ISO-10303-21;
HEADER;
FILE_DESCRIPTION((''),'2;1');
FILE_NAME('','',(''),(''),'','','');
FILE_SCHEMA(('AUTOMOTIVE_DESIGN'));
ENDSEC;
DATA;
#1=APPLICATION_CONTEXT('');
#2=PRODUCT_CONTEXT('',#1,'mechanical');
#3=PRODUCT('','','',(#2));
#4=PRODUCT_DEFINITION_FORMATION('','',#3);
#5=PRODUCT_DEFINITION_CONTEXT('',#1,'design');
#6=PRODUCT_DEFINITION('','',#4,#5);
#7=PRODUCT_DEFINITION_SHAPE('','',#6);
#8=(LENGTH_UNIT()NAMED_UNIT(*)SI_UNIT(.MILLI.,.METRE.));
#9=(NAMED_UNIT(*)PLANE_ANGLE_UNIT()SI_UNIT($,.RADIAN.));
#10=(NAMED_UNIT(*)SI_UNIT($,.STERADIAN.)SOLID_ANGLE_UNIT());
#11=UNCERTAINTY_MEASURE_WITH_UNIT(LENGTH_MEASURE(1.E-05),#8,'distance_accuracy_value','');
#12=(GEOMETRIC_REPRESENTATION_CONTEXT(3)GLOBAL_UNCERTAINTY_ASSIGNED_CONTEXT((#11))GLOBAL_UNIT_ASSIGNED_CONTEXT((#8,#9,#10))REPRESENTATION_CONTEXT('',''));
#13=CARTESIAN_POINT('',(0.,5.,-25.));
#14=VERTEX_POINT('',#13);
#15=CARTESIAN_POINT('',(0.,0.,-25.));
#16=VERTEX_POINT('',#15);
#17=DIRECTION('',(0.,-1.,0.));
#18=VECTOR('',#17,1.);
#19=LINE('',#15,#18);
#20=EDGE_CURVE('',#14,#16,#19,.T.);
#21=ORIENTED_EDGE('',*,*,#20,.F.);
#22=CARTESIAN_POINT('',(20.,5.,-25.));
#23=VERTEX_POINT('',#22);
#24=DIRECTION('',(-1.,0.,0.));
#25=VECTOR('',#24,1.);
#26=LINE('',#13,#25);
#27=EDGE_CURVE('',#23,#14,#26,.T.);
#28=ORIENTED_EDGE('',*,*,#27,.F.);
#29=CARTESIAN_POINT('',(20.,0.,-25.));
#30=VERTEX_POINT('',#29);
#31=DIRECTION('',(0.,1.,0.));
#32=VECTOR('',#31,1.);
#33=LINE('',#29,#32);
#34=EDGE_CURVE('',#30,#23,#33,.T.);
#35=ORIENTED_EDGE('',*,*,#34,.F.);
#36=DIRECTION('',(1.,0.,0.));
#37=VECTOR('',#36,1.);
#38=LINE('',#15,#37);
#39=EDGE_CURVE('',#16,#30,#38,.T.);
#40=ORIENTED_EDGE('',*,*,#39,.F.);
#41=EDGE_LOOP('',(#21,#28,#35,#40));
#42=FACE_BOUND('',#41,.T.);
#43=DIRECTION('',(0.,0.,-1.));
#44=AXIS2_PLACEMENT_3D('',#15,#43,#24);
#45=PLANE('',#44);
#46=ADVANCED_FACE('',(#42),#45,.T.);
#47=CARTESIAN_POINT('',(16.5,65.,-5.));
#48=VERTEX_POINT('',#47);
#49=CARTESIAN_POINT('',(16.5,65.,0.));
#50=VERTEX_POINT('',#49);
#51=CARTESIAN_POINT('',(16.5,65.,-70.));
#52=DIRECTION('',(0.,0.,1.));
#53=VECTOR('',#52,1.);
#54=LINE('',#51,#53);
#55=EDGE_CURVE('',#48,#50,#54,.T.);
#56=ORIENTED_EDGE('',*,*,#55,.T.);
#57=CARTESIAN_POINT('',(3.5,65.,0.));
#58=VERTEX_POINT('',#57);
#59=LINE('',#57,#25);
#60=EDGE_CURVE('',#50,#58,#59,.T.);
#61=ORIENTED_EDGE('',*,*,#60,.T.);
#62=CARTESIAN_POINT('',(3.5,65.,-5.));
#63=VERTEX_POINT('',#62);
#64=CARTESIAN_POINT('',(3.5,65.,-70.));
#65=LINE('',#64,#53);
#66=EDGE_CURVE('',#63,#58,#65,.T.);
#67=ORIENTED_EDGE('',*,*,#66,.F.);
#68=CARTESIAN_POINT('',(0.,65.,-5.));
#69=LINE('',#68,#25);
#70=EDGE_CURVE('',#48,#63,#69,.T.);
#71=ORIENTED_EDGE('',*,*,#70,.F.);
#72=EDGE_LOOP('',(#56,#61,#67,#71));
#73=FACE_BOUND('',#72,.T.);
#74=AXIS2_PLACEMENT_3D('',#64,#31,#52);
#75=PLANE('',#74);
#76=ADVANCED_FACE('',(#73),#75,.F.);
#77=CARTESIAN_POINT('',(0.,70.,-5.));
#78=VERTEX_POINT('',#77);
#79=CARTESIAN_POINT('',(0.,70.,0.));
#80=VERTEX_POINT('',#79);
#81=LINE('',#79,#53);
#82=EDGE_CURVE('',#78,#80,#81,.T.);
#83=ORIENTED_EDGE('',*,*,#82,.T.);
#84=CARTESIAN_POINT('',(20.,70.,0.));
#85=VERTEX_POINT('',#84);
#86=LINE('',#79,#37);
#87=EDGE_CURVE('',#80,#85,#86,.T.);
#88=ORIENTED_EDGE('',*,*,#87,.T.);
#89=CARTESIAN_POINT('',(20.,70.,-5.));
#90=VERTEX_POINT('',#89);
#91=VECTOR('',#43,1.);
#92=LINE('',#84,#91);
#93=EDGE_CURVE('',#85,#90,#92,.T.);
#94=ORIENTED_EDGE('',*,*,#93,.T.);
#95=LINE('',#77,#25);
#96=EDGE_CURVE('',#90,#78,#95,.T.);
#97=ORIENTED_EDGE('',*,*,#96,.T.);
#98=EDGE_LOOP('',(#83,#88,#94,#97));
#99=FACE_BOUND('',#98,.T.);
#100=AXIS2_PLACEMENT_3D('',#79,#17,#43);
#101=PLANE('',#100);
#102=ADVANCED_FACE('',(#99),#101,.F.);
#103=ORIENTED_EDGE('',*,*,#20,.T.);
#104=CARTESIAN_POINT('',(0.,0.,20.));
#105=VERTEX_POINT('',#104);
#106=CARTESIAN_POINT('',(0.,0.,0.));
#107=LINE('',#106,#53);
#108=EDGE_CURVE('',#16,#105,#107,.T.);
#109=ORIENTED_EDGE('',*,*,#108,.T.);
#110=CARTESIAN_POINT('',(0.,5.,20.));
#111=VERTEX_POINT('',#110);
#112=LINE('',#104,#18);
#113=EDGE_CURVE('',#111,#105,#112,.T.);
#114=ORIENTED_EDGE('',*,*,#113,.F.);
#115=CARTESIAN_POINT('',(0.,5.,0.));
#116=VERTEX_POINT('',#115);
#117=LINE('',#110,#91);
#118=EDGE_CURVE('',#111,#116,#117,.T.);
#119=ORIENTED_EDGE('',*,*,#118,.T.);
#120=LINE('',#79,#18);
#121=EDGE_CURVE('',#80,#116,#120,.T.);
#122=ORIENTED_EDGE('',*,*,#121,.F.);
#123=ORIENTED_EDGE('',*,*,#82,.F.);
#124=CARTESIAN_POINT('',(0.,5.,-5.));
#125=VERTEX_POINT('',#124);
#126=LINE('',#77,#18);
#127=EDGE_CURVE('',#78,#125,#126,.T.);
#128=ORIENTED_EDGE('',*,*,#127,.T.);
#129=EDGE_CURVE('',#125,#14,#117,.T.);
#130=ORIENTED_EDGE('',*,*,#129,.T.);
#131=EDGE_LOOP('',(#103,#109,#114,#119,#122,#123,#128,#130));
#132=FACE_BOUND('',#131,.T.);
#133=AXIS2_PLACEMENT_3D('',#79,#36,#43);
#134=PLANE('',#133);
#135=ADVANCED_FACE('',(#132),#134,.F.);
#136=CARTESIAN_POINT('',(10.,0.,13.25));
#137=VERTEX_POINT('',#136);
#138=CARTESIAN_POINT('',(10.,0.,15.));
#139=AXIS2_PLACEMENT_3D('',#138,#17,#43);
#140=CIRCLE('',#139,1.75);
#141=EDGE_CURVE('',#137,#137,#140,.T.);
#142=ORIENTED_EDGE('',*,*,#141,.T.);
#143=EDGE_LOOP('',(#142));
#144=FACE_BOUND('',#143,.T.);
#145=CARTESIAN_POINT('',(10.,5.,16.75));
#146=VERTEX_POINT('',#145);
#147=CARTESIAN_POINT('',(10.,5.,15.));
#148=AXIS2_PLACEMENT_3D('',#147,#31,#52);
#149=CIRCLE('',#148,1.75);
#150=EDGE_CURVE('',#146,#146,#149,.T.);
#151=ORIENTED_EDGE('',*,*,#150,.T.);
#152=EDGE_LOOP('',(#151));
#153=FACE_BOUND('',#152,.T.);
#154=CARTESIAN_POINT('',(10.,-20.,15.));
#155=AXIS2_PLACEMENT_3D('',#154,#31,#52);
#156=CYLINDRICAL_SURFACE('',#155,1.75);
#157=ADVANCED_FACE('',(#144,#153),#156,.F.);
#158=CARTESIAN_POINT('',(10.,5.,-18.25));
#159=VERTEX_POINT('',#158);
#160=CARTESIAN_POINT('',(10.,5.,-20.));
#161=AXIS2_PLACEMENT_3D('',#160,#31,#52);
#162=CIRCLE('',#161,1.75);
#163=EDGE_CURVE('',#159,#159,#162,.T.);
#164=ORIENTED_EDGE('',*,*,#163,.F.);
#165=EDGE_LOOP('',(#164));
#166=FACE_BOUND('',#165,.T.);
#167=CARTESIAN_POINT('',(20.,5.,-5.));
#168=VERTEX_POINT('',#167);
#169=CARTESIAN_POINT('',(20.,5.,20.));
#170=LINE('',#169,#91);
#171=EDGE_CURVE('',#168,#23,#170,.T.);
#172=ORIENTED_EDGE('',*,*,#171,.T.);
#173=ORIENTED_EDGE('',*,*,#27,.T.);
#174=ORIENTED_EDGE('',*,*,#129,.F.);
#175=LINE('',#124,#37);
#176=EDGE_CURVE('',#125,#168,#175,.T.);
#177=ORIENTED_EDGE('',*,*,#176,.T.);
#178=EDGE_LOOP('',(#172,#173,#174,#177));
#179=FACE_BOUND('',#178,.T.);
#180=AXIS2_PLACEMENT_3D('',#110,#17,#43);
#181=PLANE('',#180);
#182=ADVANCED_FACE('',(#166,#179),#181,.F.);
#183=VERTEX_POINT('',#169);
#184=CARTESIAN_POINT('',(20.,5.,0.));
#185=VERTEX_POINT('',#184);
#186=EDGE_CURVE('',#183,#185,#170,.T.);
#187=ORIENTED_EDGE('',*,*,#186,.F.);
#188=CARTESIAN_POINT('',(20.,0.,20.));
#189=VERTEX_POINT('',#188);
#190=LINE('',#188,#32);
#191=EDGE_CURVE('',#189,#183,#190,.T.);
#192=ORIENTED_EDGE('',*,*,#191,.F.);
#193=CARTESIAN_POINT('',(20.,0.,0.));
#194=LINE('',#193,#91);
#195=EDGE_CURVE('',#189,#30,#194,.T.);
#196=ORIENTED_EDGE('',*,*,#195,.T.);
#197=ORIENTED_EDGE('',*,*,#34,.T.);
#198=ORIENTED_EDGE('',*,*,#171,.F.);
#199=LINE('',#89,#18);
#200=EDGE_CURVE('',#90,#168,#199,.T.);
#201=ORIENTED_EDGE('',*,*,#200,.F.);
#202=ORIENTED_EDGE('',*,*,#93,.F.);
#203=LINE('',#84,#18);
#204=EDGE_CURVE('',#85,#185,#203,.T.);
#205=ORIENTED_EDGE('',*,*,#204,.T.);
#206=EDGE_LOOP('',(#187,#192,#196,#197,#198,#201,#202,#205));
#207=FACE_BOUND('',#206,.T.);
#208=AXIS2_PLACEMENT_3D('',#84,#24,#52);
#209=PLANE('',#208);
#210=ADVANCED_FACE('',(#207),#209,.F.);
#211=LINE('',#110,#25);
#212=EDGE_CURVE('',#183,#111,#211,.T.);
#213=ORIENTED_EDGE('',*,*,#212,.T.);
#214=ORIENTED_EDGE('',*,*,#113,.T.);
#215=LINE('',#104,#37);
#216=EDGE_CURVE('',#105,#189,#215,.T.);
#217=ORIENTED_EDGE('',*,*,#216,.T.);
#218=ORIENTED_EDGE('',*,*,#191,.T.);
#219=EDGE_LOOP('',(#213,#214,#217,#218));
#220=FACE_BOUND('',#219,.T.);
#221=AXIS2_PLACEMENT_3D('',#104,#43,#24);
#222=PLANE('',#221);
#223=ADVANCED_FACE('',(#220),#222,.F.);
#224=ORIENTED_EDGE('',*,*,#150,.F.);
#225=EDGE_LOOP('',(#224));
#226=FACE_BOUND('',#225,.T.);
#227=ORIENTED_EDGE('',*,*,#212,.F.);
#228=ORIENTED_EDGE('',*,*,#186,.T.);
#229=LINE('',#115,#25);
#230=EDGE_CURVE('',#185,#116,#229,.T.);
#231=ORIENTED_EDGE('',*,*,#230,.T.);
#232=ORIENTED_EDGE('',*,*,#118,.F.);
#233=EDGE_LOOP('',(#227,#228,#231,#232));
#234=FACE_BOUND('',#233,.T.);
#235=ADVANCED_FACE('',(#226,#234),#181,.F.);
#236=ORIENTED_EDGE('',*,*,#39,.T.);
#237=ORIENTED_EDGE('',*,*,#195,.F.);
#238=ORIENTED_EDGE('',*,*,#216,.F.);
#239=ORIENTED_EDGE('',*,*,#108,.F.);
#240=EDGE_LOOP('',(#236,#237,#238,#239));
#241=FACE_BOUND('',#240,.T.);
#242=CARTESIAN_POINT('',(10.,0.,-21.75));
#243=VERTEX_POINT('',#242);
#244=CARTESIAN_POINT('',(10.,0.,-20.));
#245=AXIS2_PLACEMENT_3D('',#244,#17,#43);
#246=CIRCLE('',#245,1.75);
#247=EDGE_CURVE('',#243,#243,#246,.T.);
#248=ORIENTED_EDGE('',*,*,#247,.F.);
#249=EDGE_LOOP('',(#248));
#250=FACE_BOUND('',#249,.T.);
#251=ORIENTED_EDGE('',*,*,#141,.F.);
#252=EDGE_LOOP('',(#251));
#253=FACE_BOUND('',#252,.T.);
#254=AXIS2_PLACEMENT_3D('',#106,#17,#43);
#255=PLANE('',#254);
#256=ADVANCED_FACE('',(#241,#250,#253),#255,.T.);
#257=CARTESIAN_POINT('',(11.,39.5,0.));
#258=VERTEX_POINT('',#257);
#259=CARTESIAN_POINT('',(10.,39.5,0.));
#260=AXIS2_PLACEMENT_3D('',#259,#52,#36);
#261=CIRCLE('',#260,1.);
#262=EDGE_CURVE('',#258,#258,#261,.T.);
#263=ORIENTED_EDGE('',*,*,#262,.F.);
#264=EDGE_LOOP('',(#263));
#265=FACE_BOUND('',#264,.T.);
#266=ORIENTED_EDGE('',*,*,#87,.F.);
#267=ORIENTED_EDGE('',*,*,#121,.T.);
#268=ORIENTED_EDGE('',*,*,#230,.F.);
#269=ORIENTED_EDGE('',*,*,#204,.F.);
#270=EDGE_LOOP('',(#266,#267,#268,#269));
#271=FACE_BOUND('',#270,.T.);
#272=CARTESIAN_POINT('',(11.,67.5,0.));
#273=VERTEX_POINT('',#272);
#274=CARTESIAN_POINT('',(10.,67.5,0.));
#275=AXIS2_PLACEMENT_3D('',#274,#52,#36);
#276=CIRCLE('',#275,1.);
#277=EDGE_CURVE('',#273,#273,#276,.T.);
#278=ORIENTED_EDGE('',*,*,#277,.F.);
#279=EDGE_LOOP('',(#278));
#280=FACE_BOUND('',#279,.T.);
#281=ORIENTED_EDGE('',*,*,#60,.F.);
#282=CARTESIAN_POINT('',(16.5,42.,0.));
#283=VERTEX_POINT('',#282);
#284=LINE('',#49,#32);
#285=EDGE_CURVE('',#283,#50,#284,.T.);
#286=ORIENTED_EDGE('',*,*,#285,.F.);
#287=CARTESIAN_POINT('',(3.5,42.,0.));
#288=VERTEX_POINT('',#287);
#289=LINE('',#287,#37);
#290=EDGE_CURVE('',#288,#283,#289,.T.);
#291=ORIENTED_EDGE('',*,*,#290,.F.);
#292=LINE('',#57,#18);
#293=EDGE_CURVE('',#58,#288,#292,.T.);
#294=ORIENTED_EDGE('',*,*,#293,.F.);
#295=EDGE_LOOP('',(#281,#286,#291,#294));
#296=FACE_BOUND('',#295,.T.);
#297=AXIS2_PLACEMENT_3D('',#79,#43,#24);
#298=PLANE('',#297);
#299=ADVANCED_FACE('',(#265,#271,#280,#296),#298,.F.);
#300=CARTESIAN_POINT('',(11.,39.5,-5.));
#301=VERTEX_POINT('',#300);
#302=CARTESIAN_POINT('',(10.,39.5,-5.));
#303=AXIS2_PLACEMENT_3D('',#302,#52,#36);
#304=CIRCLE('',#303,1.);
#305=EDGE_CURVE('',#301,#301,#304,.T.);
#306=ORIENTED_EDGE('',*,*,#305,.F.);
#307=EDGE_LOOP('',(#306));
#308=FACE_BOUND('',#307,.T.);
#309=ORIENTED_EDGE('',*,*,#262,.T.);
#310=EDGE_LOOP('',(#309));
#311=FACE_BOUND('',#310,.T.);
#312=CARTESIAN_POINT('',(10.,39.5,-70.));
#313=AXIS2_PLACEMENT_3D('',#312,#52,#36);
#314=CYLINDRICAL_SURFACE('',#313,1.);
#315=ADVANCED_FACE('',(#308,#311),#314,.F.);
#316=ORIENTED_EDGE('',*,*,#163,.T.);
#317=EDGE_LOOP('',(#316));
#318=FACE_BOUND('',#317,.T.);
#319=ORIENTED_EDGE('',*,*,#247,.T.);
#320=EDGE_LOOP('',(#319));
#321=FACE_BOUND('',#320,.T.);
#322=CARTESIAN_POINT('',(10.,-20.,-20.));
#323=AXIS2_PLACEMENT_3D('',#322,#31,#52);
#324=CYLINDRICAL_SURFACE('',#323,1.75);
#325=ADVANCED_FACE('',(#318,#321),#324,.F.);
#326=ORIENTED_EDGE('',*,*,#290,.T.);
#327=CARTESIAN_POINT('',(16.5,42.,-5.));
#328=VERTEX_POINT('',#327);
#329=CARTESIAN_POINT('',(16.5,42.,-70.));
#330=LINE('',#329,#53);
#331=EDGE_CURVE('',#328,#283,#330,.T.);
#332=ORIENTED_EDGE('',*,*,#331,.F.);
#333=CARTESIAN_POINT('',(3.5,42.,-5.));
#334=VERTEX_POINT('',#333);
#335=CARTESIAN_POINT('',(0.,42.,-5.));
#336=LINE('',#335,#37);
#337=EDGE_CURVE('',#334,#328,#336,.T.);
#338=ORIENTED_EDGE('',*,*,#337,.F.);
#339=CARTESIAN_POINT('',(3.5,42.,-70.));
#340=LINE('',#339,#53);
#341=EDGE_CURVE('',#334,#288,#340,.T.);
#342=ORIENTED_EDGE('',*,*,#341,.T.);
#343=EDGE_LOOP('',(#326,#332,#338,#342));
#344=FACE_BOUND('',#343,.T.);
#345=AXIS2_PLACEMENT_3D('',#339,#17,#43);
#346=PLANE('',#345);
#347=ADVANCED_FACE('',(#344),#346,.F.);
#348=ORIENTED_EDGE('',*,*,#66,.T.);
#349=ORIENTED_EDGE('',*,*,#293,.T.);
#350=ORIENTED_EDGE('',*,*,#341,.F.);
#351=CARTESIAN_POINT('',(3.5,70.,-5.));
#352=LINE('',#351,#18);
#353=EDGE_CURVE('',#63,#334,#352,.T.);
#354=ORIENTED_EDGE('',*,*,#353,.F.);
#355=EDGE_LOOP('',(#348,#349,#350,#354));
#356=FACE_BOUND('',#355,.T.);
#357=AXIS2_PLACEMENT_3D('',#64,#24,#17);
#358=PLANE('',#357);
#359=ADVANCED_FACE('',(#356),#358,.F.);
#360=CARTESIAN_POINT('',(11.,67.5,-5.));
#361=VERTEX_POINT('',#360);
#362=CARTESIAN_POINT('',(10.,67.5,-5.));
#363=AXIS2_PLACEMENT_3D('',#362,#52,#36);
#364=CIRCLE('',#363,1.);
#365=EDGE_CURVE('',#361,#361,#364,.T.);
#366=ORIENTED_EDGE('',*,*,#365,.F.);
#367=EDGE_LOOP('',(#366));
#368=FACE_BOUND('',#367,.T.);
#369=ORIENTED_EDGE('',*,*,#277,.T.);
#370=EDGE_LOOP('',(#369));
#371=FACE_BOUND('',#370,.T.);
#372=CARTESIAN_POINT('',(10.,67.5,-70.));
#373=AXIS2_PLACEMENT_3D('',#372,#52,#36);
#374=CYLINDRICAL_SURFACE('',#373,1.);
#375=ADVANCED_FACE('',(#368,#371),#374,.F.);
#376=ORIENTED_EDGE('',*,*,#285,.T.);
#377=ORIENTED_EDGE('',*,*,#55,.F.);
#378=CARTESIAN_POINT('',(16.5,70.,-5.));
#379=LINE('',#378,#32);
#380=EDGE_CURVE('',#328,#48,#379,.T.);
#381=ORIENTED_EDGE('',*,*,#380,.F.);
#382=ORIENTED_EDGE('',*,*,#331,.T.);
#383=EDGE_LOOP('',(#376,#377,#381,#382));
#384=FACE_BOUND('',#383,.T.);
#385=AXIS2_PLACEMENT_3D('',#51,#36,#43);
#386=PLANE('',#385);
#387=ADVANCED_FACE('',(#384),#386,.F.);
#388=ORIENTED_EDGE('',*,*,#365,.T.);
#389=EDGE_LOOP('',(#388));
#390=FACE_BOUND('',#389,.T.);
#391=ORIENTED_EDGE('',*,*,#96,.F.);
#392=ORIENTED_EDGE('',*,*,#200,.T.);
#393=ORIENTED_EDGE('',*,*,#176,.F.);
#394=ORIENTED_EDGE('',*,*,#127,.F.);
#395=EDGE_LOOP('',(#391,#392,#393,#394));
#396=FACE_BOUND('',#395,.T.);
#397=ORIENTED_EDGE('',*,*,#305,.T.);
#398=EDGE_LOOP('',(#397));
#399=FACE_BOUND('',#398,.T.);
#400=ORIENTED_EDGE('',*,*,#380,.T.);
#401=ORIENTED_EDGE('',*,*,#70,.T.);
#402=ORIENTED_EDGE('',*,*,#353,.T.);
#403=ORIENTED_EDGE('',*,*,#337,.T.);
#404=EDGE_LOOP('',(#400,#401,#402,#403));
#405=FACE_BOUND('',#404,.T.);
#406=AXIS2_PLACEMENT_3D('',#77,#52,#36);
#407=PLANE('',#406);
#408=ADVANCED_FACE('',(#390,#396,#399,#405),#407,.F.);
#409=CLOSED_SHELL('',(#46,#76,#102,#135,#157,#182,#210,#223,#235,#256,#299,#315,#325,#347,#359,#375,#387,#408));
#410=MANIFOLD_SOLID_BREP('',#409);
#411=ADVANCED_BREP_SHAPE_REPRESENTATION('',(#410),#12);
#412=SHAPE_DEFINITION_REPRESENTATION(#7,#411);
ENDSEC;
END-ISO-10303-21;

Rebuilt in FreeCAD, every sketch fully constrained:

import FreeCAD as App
import Part
import Sketcher
Q = App.Units.Quantity

doc = App.newDocument("Part")
body = doc.addObject("PartDesign::Body", "Body")

# Sketch on XZ plane
sketch1 = body.newObject("Sketcher::SketchObject", "Sketch")
sketch1.AttachmentSupport = (doc.getObject("XZ_Plane"), [""])
sketch1.MapMode = "FlatFace"
sketch1.addGeometry([
    Part.LineSegment(App.Vector(0, -5, 0), App.Vector(0, 0, 0)),
    Part.LineSegment(App.Vector(0, 0, 0), App.Vector(20, 0, 0)),
    Part.LineSegment(App.Vector(20, 0, 0), App.Vector(20, -5, 0)),
    Part.LineSegment(App.Vector(20, -5, 0), App.Vector(0, -5, 0)),
], False)
sketch1.addConstraint([
    Sketcher.Constraint("Coincident", 0, 2, 1, 1),
    Sketcher.Constraint("Coincident", 1, 2, 2, 1),
    Sketcher.Constraint("Coincident", 2, 2, 3, 1),
    Sketcher.Constraint("Coincident", 3, 2, 0, 1),
    Sketcher.Constraint("Vertical", 0),
    Sketcher.Constraint("Horizontal", 1),
    Sketcher.Constraint("Vertical", 2),
    Sketcher.Constraint("Horizontal", 3),
    Sketcher.Constraint("Coincident", 0, 2, -1, 1),
    Sketcher.Constraint("DistanceX", 1, 1, 1, 2, Q("20 mm")),
    Sketcher.Constraint("DistanceY", 0, 1, 0, 2, Q("5 mm")),
])
pad1 = body.newObject("PartDesign::Pad", "Pad")
pad1.Profile = sketch1
pad1.Length = 70
pad1.Reversed = True

# Sketch on XY plane
sketch2 = body.newObject("Sketcher::SketchObject", "Sketch001")
sketch2.AttachmentSupport = (doc.getObject("XY_Plane"), [""])
sketch2.MapMode = "FlatFace"
sketch2.addGeometry([
    Part.Circle(App.Vector(10, 67.5, 0), App.Vector(0, 0, 1), 1),  # 0
    Part.Circle(App.Vector(10, 39.5, 0), App.Vector(0, 0, 1), 1),  # 1
    Part.LineSegment(App.Vector(3.5, 65, 0), App.Vector(3.5, 42, 0)),  # 2
    Part.LineSegment(App.Vector(3.5, 42, 0), App.Vector(16.5, 42, 0)),  # 3
    Part.LineSegment(App.Vector(16.5, 42, 0), App.Vector(16.5, 65, 0)),  # 4
    Part.LineSegment(App.Vector(16.5, 65, 0), App.Vector(3.5, 65, 0)),  # 5
], False)
sketch2.addConstraint([
    Sketcher.Constraint("Coincident", 2, 2, 3, 1),
    Sketcher.Constraint("Coincident", 3, 2, 4, 1),
    Sketcher.Constraint("Coincident", 4, 2, 5, 1),
    Sketcher.Constraint("Coincident", 5, 2, 2, 1),
    Sketcher.Constraint("Vertical", 2),
    Sketcher.Constraint("Horizontal", 3),
    Sketcher.Constraint("Vertical", 4),
    Sketcher.Constraint("Horizontal", 5),
    Sketcher.Constraint("Equal", 0, 1),
    Sketcher.Constraint("Vertical", 0, 3, 1, 3),
    Sketcher.Constraint("Diameter", 0, Q("2 mm")),
    Sketcher.Constraint("DistanceX", 3, 1, 3, 2, Q("13 mm")),
    Sketcher.Constraint("DistanceY", 2, 2, 2, 1, Q("23 mm")),
    Sketcher.Constraint("DistanceX", -1, 1, 0, 3, Q("10 mm")),
    Sketcher.Constraint("DistanceY", -1, 1, 2, 2, Q("42 mm")),
    Sketcher.Constraint("DistanceY", 1, 3, 0, 3, Q("28 mm")),
    Sketcher.Constraint("DistanceY", -1, 1, 0, 3, Q("67.5 mm")),
    Sketcher.Constraint("DistanceX", -1, 1, 2, 2, Q("3.5 mm")),
])
pocket1 = body.newObject("PartDesign::Pocket", "Pocket")
pocket1.Profile = sketch2
pocket1.Length = 70

# Sketch on XY plane
sketch3 = body.newObject("Sketcher::SketchObject", "Sketch002")
sketch3.AttachmentSupport = (doc.getObject("XY_Plane"), [""])
sketch3.MapMode = "FlatFace"
sketch3.addGeometry([
    Part.LineSegment(App.Vector(0, 5, 0), App.Vector(0, 0, 0)),
    Part.LineSegment(App.Vector(0, 0, 0), App.Vector(20, 0, 0)),
    Part.LineSegment(App.Vector(20, 0, 0), App.Vector(20, 5, 0)),
    Part.LineSegment(App.Vector(20, 5, 0), App.Vector(0, 5, 0)),
], False)
sketch3.addConstraint([
    Sketcher.Constraint("Coincident", 0, 2, 1, 1),
    Sketcher.Constraint("Coincident", 1, 2, 2, 1),
    Sketcher.Constraint("Coincident", 2, 2, 3, 1),
    Sketcher.Constraint("Coincident", 3, 2, 0, 1),
    Sketcher.Constraint("Vertical", 0),
    Sketcher.Constraint("Horizontal", 1),
    Sketcher.Constraint("Vertical", 2),
    Sketcher.Constraint("Horizontal", 3),
    Sketcher.Constraint("Coincident", 0, 2, -1, 1),
    Sketcher.Constraint("DistanceX", 1, 1, 1, 2, Q("20 mm")),
    Sketcher.Constraint("DistanceY", 0, 2, 0, 1, Q("5 mm")),
])
pad2 = body.newObject("PartDesign::Pad", "Pad001")
pad2.Profile = sketch3
pad2.Type = "TwoLengths"
pad2.Length = 20
pad2.Length2 = 25

# Sketch on XZ plane
sketch4 = body.newObject("Sketcher::SketchObject", "Sketch003")
sketch4.AttachmentSupport = (doc.getObject("XZ_Plane"), [""])
sketch4.MapMode = "FlatFace"
sketch4.AttachmentOffset = App.Placement(App.Vector(0, 0, -5), App.Rotation())
sketch4.addGeometry([
    Part.Circle(App.Vector(10, 15, 0), App.Vector(0, 0, 1), 1.8),
    Part.Circle(App.Vector(10, -20, 0), App.Vector(0, 0, 1), 1.8),
], False)
sketch4.addConstraint([
    Sketcher.Constraint("Equal", 0, 1),
    Sketcher.Constraint("Vertical", 0, 3, 1, 3),
    Sketcher.Constraint("Diameter", 0, Q("3.5 mm")),
    Sketcher.Constraint("DistanceX", -1, 1, 0, 3, Q("10 mm")),
    Sketcher.Constraint("DistanceY", -1, 1, 0, 3, Q("15 mm")),
    Sketcher.Constraint("DistanceY", 1, 3, -1, 1, Q("20 mm")),
])
pocket2 = body.newObject("PartDesign::Pocket", "Pocket001")
pocket2.Profile = sketch4
pocket2.Length = 25
pocket2.Reversed = True

doc.recompute()
